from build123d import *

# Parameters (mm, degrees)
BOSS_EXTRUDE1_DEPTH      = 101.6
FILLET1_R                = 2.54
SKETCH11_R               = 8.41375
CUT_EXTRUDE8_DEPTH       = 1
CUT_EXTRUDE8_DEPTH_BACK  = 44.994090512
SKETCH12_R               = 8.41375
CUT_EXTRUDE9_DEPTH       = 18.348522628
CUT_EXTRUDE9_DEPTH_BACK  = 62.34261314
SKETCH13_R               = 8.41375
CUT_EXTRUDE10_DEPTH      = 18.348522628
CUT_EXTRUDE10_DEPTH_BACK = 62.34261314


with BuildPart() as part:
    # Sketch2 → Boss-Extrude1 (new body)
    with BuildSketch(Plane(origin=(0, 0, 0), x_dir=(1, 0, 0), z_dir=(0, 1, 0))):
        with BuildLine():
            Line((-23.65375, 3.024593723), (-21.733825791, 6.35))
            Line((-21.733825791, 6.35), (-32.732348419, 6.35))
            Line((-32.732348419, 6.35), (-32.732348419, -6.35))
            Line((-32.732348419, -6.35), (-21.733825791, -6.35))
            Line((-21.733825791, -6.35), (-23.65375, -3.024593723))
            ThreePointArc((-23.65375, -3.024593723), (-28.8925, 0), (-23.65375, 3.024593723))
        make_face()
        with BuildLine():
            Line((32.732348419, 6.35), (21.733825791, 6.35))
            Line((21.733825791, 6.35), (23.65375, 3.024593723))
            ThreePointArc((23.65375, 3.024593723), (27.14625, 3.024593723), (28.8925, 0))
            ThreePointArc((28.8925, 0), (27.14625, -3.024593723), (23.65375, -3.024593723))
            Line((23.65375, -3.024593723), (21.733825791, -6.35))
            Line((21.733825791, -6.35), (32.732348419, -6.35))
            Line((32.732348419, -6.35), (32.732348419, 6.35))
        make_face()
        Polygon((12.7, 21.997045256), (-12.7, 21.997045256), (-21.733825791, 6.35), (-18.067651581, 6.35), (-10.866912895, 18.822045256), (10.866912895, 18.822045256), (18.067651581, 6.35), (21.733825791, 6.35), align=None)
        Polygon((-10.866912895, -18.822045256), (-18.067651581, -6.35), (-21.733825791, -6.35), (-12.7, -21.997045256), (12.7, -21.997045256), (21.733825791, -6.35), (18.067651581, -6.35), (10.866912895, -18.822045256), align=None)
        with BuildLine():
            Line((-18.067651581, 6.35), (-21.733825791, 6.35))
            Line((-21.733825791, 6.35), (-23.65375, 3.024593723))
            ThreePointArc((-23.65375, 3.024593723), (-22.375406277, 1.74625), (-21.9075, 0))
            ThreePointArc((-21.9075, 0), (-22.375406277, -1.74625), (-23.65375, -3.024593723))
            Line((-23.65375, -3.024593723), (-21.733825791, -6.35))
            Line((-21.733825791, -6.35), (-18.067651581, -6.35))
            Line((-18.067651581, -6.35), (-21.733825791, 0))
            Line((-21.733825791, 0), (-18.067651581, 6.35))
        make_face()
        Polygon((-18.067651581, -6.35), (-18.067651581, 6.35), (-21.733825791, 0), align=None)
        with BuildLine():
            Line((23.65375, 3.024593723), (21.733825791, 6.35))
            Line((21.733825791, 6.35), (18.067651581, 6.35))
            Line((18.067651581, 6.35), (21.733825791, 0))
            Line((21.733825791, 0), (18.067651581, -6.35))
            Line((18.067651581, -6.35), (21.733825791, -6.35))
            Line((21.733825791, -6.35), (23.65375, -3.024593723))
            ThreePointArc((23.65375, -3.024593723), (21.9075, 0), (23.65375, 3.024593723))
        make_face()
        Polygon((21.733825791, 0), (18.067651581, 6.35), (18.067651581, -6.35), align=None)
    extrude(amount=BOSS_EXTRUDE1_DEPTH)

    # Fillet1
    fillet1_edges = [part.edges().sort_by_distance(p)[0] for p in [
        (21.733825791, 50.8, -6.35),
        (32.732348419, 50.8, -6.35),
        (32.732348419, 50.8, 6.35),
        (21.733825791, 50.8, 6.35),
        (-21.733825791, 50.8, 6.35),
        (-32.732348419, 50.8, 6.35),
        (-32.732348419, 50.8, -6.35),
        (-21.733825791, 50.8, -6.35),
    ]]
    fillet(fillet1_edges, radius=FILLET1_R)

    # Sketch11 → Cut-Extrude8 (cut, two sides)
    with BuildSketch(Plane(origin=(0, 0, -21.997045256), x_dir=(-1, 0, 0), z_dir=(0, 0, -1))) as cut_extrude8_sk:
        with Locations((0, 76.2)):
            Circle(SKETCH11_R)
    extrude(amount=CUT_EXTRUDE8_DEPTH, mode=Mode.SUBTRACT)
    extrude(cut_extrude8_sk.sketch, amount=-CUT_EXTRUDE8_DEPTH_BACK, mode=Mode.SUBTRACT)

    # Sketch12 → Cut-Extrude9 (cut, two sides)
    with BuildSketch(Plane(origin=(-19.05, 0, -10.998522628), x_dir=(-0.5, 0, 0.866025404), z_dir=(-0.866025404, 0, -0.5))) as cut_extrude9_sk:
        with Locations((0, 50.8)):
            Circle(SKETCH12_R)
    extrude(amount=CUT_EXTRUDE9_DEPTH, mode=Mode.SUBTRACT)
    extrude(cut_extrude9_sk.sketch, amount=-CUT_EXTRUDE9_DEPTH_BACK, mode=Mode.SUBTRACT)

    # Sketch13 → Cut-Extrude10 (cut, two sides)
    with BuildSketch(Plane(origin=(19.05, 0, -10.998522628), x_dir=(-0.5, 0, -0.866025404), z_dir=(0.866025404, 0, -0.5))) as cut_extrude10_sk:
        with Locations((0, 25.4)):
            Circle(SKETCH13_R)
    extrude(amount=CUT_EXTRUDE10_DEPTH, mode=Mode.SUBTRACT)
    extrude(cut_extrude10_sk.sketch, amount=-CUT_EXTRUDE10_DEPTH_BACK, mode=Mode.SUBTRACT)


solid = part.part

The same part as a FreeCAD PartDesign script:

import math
import FreeCAD as App
import Part
import Sketcher
from FreeCAD import Vector
Q = App.Units.Quantity


def edges_at(feature, points):
    """Names of the edges that pass closest to the given points."""
    edges = feature.Shape.Edges
    near = lambda p: min(range(len(edges)), key=lambda i: edges[i].distToShape(Part.Vertex(*p))[0])
    return sorted({f"Edge{near(p) + 1}" for p in points})


def add_polygon(sketch, points):
    """Adds a closed chain of lines whose ends are joined by coincident constraints."""
    first, n = sketch.GeometryCount, len(points)
    for a, b in zip(points, points[1:] + points[:1]):
        sketch.addGeometry(Part.LineSegment(App.Vector(*a, 0), App.Vector(*b, 0)), False)
    for i in range(n):
        sketch.addConstraint(Sketcher.Constraint("Coincident", first + i, 2, first + (i + 1) % n, 1))

doc = App.newDocument("Part")
params = doc.addObject("Spreadsheet::Sheet", "Params")
for row, (alias, value) in enumerate([
    ("sketch1_width", "1 in"),
    ("sketch1_height", "0.5 in"),
    ("pad1_length", "4 in"),
    ("fillet_radius", "0.1 in"),
], start=1):
    params.set(f"A{row}", alias)
    params.set(f"B{row}", "=" + value)
    params.setAlias(f"B{row}", alias)

body = doc.addObject("PartDesign::Body", "Body")

sketch1 = doc.addObject("Sketcher::SketchObject", "Sketch")
body.addObject(sketch1)
sketch1.AttachmentSupport = (doc.XZ_Plane, [""])
sketch1.MapMode = "FlatFace"
add_polygon(sketch1, [(-21.7, -6.3), (-32.7, -6.3), (-32.7, 6.3), (-21.7, 6.3), (-12.7, 22), (12.7, 22), (21.7, 6.3), (32.7, 6.3), (32.7, -6.3), (21.7, -6.3), (12.7, -22), (-12.7, -22)])
add_polygon(sketch1, [(18.1, 6.3), (10.9, 18.8), (-10.9, 18.8), (-18.1, 6.3), (-18.1, -6.3), (-10.9, -18.8), (10.9, -18.8), (18.1, -6.3)])
sketch1.addGeometry(Part.ArcOfCircle(Part.Circle(Vector(-25.4, 0, 0), Vector(0, 0, 1), 3.5), math.radians(60), math.radians(300)), False)
sketch1.addGeometry(Part.ArcOfCircle(Part.Circle(Vector(-25.4, 0, 0), Vector(0, 0, 1), 3.5), math.radians(-60), math.radians(0)), False)
sketch1.addGeometry(Part.ArcOfCircle(Part.Circle(Vector(-25.4, 0, 0), Vector(0, 0, 1), 3.5), math.radians(0), math.radians(60)), False)
sketch1.addGeometry(Part.ArcOfCircle(Part.Circle(Vector(25.4, 0, 0), Vector(0, 0, 1), 3.5), math.radians(120), math.radians(240)), False)
sketch1.addGeometry(Part.ArcOfCircle(Part.Circle(Vector(25.4, 0, 0), Vector(0, 0, 1), 3.5), math.radians(-120), math.radians(0)), False)
sketch1.addGeometry(Part.ArcOfCircle(Part.Circle(Vector(25.4, 0, 0), Vector(0, 0, 1), 3.5), math.radians(0), math.radians(120)), False)
sketch1.addConstraint([
    Sketcher.Constraint("Tangent", 20, 2, 21, 1),
    Sketcher.Constraint("Tangent", 21, 2, 22, 1),
    Sketcher.Constraint("Tangent", 22, 2, 20, 1),
    Sketcher.Constraint("Tangent", 23, 2, 24, 1),
    Sketcher.Constraint("Tangent", 24, 2, 25, 1),
    Sketcher.Constraint("Tangent", 25, 2, 23, 1),
    Sketcher.Constraint("Horizontal", 0),
    Sketcher.Constraint("Vertical", 1),
    Sketcher.Constraint("Horizontal", 2),
    Sketcher.Constraint("Horizontal", 4),
    Sketcher.Constraint("Horizontal", 6),
    Sketcher.Constraint("Vertical", 7),
    Sketcher.Constraint("Horizontal", 8),
    Sketcher.Constraint("Horizontal", 10),
    Sketcher.Constraint("Horizontal", 13),
    Sketcher.Constraint("Vertical", 15),
    Sketcher.Constraint("Horizontal", 17),
    Sketcher.Constraint("Vertical", 19),
    Sketcher.Constraint("Equal", 22, 23),
    Sketcher.Constraint("Symmetric", 20, 3, 23, 3, -1, 1),
    Sketcher.Constraint("Symmetric", 0, 2, 6, 2, -1, 1),
    Sketcher.Constraint("Symmetric", 2, 2, 8, 2, -1, 1),
    Sketcher.Constraint("Symmetric", 3, 2, 9, 2, -1, 1),
    Sketcher.Constraint("Symmetric", 12, 2, 16, 2, -1, 1),
    Sketcher.Constraint("Symmetric", 14, 2, 18, 2, -1, 1),
    Sketcher.Constraint("Symmetric", 2, 2, 5, 2, -2),
    Sketcher.Constraint("Symmetric", 20, 2, 23, 2, -2),
    Sketcher.Constraint("PointOnObject", 21, 2, -1),
    Sketcher.Constraint("PointOnObject", 24, 2, -1),
    Sketcher.Constraint("Parallel", 5, 11),
    Sketcher.Constraint("Parallel", 11, 12),
    Sketcher.Constraint("Parallel", 9, 14),
    Sketcher.Constraint("Parallel", 12, 16),
    Sketcher.Constraint("Parallel", 14, 18),
    Sketcher.Constraint("Horizontal", 6, 2, 14, 2),
    Sketcher.Constraint("Horizontal", 11, 2, 15, 2),
    Sketcher.Constraint("Horizontal", 22, 2, 25, 2),
    Sketcher.Constraint("Vertical", 4, 2, 9, 2),
    Sketcher.Constraint("Vertical", 3, 2, 10, 2),
    Sketcher.Constraint("Vertical", 20, 2, 22, 2),
    Sketcher.Constraint("DistanceX", 4, 1, 4, 2, Q("1 in")),
    Sketcher.Constraint("DistanceY", 1, 1, 1, 2, Q("0.5 in")),
    Sketcher.Constraint("DistanceX", 20, 3, -1, 1, Q("1 in")),
    Sketcher.Constraint("Angle", 3, Q("60 deg")),
    Sketcher.Constraint("Radius", 20, Q("0.1375 in")),
    Sketcher.Constraint("DistanceY", 12, 2, 4, 2, Q("0.125 in")),
    Sketcher.Constraint("DistanceX", 20, 2, 15, 2, Q("5.586098 mm")),
    Sketcher.Constraint("Distance", 3, Q("18.067652 mm")),
    Sketcher.Constraint("DistanceX", 0, 2, 0, 1, Q("10.998523 mm")),
    Sketcher.Constraint("DistanceX", 13, 2, 13, 1, Q("21.733826 mm")),
])
sketch1.setExpression("Constraints[60]", "Params.sketch1_width")
sketch1.setExpression("Constraints[61]", "Params.sketch1_height")
pad1 = doc.addObject("PartDesign::Pad", "Pad")
body.addObject(pad1)
pad1.Profile = sketch1
pad1.setExpression("Length", "Params.pad1_length")
pad1.Reversed = True
doc.recompute()

fillet = doc.addObject("PartDesign::Fillet", "Fillet")
body.addObject(fillet)
fillet.Base = (pad1, edges_at(pad1, [
    (21.734, 50.8, -6.35),
    (32.732, 50.8, -6.35),
    (32.732, 50.8, 6.35),
    (21.734, 50.8, 6.35),
    (-21.734, 50.8, 6.35),
    (-32.732, 50.8, 6.35),
    (-32.732, 50.8, -6.35),
    (-21.734, 50.8, -6.35),
]))
fillet.setExpression("Radius", "Params.fillet_radius")

sketch2 = doc.addObject("Sketcher::SketchObject", "Sketch001")
body.addObject(sketch2)
sketch2.AttachmentSupport = (doc.XY_Plane, [""])
sketch2.MapMode = "FlatFace"
sketch2.AttachmentOffset = App.Placement(Vector(0, 0, -21.997045), App.Rotation())
sketch2.addGeometry(Part.Circle(Vector(0, 76, 0), Vector(0, 0, 1), 8), False)
sketch2.addConstraint([
    Sketcher.Constraint("PointOnObject", 0, 3, -2),
    Sketcher.Constraint("DistanceY", -1, 1, 0, 3, Q("3 in")),
    Sketcher.Constraint("Diameter", 0, Q("0.6625 in")),
])
pocket1 = doc.addObject("PartDesign::Pocket", "Pocket")
body.addObject(pocket1)
pocket1.Profile = sketch2
pocket1.Type = "ThroughAll"
pocket1.Midplane = True

sketch3 = doc.addObject("Sketcher::SketchObject", "Sketch002")
body.addObject(sketch3)
sketch3.Placement = App.Placement(Vector(-19.05, 0, -10.998523), App.Rotation(Vector(-0.5, 0, 0.866025404), Vector(0, 1, 0), Vector(-0.866025404, 0, -0.5), "ZXY"))
sketch3.addGeometry(Part.Circle(Vector(0, 51, 0), Vector(0, 0, 1), 8), False)
sketch3.addConstraint([
    Sketcher.Constraint("PointOnObject", 0, 3, -2),
    Sketcher.Constraint("DistanceY", -1, 1, 0, 3, Q("2 in")),
    Sketcher.Constraint("Diameter", 0, Q("0.6625 in")),
])
pocket2 = doc.addObject("PartDesign::Pocket", "Pocket001")
body.addObject(pocket2)
pocket2.Profile = sketch3
pocket2.Type = "ThroughAll"
pocket2.Midplane = True

sketch4 = doc.addObject("Sketcher::SketchObject", "Sketch003")
body.addObject(sketch4)
sketch4.Placement = App.Placement(Vector(19.05, 0, -10.998523), App.Rotation(Vector(-0.5, 0, -0.866025404), Vector(0, 1, 0), Vector(0.866025404, 0, -0.5), "ZXY"))
sketch4.addGeometry(Part.Circle(Vector(0, 25, 0), Vector(0, 0, 1), 8), False)
sketch4.addConstraint([
    Sketcher.Constraint("PointOnObject", 0, 3, -2),
    Sketcher.Constraint("DistanceY", -1, 1, 0, 3, Q("1 in")),
    Sketcher.Constraint("Diameter", 0, Q("0.6625 in")),
])
pocket3 = doc.addObject("PartDesign::Pocket", "Pocket002")
body.addObject(pocket3)
pocket3.Profile = sketch4
pocket3.Type = "ThroughAll"
pocket3.Midplane = True

doc.recompute()
